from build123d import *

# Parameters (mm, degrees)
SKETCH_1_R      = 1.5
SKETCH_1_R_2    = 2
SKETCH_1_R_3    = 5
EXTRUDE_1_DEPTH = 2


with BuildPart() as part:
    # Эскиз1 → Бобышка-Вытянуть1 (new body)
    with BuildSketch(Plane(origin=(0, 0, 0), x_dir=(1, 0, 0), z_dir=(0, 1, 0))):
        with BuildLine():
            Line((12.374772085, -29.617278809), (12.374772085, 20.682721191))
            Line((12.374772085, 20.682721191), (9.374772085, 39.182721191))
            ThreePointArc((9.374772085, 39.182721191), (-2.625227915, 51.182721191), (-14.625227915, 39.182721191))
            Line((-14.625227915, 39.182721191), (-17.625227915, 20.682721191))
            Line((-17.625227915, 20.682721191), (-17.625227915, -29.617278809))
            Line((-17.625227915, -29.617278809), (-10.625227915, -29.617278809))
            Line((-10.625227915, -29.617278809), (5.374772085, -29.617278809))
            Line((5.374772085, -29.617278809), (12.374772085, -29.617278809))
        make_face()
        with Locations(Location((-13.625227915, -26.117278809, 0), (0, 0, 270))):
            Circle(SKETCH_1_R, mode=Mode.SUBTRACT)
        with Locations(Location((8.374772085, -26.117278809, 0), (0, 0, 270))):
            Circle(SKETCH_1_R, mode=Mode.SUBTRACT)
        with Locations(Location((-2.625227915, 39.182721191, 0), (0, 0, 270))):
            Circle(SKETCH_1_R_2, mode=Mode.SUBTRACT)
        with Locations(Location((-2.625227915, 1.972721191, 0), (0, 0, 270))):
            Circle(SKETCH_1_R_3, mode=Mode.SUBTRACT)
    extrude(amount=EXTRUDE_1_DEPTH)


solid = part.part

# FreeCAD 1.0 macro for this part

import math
import FreeCAD as App
import Part
import Sketcher
from FreeCAD import Vector
Q = App.Units.Quantity

doc = App.newDocument("Part")
body = doc.addObject("PartDesign::Body", "Body")

sketch1 = body.newObject("Sketcher::SketchObject", "Sketch")
sketch1.AttachmentSupport = (doc.getObject("XZ_Plane"), [""])
sketch1.MapMode = "FlatFace"
sketch1.addGeometry(Part.LineSegment(Vector(12.4, 29.6, 0), Vector(12.4, -20.7, 0)), False)
sketch1.addGeometry(Part.LineSegment(Vector(12.4, -20.7, 0), Vector(9.4, -39.2, 0)), False)
sketch1.addGeometry(Part.ArcOfCircle(Part.Circle(Vector(-2.6, -39.2, 0), Vector(0, 0, 1), 12), math.radians(180), math.radians(360)), False)
sketch1.addGeometry(Part.LineSegment(Vector(-14.6, -39.2, 0), Vector(-17.6, -20.7, 0)), False)
sketch1.addGeometry(Part.LineSegment(Vector(-17.6, -20.7, 0), Vector(-17.6, 29.6, 0)), False)
sketch1.addGeometry(Part.LineSegment(Vector(-17.6, 29.6, 0), Vector(12.4, 29.6, 0)), False)
sketch1.addGeometry(Part.Circle(Vector(-13.6, 26.1, 0), Vector(0, 0, 1), 1.5), False)
sketch1.addGeometry(Part.Circle(Vector(8.4, 26.1, 0), Vector(0, 0, 1), 1.5), False)
sketch1.addGeometry(Part.Circle(Vector(-2.6, -2, 0), Vector(0, 0, 1), 5), False)
sketch1.addGeometry(Part.Circle(Vector(-2.6, -39.2, 0), Vector(0, 0, 1), 2), False)
sketch1.addConstraint(Sketcher.Constraint("Coincident", 0, 2, 1, 1))
sketch1.addConstraint(Sketcher.Constraint("Coincident", 1, 2, 2, 2))
sketch1.addConstraint(Sketcher.Constraint("Coincident", 2, 1, 3, 1))
sketch1.addConstraint(Sketcher.Constraint("Coincident", 3, 2, 4, 1))
sketch1.addConstraint(Sketcher.Constraint("Coincident", 4, 2, 5, 1))
sketch1.addConstraint(Sketcher.Constraint("Coincident", 5, 2, 0, 1))
sketch1.addConstraint(Sketcher.Constraint("Vertical", 0))
sketch1.addConstraint(Sketcher.Constraint("Vertical", 4))
sketch1.addConstraint(Sketcher.Constraint("Horizontal", 5))
sketch1.addConstraint(Sketcher.Constraint("Coincident", 9, 3, 2, 3))
sketch1.addConstraint(Sketcher.Constraint("Equal", 6, 7))
sketch1.addConstraint(Sketcher.Constraint("Horizontal", 6, 3, 7, 3))
sketch1.addConstraint(Sketcher.Constraint("Horizontal", 9, 3, 1, 2))
sketch1.addConstraint(Sketcher.Constraint("Horizontal", 1, 2, 2, 1))
sketch1.addConstraint(Sketcher.Constraint("Horizontal", 0, 2, 3, 2))
sketch1.addConstraint(Sketcher.Constraint("Vertical", 2, 3, 8, 3))
sketch1.addConstraint(Sketcher.Constraint("Equal", 1, 3))
sketch1.addConstraint(Sketcher.Constraint("Diameter", 6, Q("3 mm")))
sketch1.addConstraint(Sketcher.Constraint("Diameter", 8, Q("10 mm")))
sketch1.addConstraint(Sketcher.Constraint("Diameter", 9, Q("4 mm")))
sketch1.addConstraint(Sketcher.Constraint("Radius", 2, Q("12 mm")))
sketch1.addConstraint(Sketcher.Constraint("DistanceX", 5, 1, 5, 2, Q("30 mm")))
sketch1.addConstraint(Sketcher.Constraint("DistanceY", 0, 2, 0, 1, Q("50.3 mm")))
sketch1.addConstraint(Sketcher.Constraint("DistanceX", 6, 3, 2, 3, Q("11 mm")))
sketch1.addConstraint(Sketcher.Constraint("DistanceX", 6, 3, 7, 3, Q("22 mm")))
sketch1.addConstraint(Sketcher.Constraint("DistanceY", 2, 3, 6, 3, Q("65.3 mm")))
sketch1.addConstraint(Sketcher.Constraint("DistanceY", 2, 3, 0, 2, Q("18.5 mm")))
sketch1.addConstraint(Sketcher.Constraint("DistanceY", 8, 3, 6, 3, Q("28.09 mm")))
sketch1.addConstraint(Sketcher.Constraint("DistanceY", 2, 3, -1, 1, Q("39.182721 mm")))
sketch1.addConstraint(Sketcher.Constraint("DistanceX", 2, 3, -1, 1, Q("2.625228 mm")))
pad1 = body.newObject("PartDesign::Pad", "Pad")
pad1.Profile = sketch1
pad1.Length = 2
pad1.Reversed = True

doc.recompute()
